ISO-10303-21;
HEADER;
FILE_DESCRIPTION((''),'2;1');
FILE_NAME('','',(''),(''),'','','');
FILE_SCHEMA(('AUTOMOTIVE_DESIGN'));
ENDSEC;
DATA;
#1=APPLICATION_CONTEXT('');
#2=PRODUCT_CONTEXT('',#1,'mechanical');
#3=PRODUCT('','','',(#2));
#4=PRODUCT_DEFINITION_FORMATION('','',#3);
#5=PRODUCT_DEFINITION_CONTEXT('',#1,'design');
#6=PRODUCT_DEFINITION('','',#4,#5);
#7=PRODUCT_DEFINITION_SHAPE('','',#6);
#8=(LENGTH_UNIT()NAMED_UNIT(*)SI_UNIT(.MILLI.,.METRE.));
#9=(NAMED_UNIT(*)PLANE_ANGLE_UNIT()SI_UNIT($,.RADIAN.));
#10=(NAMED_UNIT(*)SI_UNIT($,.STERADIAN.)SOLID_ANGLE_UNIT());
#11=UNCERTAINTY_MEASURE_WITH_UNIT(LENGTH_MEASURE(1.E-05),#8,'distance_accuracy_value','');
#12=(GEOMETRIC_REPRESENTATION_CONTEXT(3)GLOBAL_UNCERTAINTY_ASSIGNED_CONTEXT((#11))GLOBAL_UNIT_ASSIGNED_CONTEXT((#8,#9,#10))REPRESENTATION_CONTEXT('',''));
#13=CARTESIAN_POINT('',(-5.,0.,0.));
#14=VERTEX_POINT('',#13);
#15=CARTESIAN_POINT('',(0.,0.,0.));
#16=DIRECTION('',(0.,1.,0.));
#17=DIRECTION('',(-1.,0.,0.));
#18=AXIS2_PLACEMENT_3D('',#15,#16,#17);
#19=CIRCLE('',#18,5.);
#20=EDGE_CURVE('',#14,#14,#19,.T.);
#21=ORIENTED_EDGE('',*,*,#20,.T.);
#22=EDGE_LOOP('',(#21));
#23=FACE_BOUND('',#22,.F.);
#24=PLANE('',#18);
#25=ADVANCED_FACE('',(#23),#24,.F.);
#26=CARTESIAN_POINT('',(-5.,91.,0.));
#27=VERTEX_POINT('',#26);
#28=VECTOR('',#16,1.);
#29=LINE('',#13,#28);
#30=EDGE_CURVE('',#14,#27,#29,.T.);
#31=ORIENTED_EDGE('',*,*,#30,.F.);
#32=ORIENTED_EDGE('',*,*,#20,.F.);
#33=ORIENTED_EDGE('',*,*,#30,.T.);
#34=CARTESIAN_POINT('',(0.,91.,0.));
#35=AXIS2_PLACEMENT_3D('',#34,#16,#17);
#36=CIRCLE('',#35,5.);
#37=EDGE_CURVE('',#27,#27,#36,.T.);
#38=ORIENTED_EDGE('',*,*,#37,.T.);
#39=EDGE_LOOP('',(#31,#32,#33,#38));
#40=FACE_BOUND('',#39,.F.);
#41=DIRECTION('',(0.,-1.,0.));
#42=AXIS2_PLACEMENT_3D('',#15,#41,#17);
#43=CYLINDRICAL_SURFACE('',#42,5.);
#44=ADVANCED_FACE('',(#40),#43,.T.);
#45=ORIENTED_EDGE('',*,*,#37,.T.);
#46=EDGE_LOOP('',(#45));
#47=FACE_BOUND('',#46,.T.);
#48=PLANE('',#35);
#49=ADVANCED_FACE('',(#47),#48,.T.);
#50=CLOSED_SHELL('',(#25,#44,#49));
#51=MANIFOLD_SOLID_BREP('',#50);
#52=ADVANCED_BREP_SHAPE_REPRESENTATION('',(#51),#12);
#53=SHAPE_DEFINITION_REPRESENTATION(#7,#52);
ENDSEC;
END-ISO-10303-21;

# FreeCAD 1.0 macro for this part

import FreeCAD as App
import Part
import Sketcher

doc = App.newDocument("Part")
body = doc.addObject("PartDesign::Body", "Body")

# Sketch on XZ plane
sketch1 = body.newObject("Sketcher::SketchObject", "Sketch")
sketch1.AttachmentSupport = (doc.getObject("XZ_Plane"), [""])
sketch1.MapMode = "FlatFace"
sketch1.addGeometry(Part.Circle(App.Vector(0, 0, 0), App.Vector(0, 0, 1), 5), False)
sketch1.addConstraint(Sketcher.Constraint("Coincident", 0, 3, -1, 1))
sketch1.addConstraint(Sketcher.Constraint("Diameter", 0, 10.0))
pad1 = body.newObject("PartDesign::Pad", "Pad")
pad1.Profile = sketch1
pad1.Length = 91
pad1.Reversed = True

doc.recompute()
